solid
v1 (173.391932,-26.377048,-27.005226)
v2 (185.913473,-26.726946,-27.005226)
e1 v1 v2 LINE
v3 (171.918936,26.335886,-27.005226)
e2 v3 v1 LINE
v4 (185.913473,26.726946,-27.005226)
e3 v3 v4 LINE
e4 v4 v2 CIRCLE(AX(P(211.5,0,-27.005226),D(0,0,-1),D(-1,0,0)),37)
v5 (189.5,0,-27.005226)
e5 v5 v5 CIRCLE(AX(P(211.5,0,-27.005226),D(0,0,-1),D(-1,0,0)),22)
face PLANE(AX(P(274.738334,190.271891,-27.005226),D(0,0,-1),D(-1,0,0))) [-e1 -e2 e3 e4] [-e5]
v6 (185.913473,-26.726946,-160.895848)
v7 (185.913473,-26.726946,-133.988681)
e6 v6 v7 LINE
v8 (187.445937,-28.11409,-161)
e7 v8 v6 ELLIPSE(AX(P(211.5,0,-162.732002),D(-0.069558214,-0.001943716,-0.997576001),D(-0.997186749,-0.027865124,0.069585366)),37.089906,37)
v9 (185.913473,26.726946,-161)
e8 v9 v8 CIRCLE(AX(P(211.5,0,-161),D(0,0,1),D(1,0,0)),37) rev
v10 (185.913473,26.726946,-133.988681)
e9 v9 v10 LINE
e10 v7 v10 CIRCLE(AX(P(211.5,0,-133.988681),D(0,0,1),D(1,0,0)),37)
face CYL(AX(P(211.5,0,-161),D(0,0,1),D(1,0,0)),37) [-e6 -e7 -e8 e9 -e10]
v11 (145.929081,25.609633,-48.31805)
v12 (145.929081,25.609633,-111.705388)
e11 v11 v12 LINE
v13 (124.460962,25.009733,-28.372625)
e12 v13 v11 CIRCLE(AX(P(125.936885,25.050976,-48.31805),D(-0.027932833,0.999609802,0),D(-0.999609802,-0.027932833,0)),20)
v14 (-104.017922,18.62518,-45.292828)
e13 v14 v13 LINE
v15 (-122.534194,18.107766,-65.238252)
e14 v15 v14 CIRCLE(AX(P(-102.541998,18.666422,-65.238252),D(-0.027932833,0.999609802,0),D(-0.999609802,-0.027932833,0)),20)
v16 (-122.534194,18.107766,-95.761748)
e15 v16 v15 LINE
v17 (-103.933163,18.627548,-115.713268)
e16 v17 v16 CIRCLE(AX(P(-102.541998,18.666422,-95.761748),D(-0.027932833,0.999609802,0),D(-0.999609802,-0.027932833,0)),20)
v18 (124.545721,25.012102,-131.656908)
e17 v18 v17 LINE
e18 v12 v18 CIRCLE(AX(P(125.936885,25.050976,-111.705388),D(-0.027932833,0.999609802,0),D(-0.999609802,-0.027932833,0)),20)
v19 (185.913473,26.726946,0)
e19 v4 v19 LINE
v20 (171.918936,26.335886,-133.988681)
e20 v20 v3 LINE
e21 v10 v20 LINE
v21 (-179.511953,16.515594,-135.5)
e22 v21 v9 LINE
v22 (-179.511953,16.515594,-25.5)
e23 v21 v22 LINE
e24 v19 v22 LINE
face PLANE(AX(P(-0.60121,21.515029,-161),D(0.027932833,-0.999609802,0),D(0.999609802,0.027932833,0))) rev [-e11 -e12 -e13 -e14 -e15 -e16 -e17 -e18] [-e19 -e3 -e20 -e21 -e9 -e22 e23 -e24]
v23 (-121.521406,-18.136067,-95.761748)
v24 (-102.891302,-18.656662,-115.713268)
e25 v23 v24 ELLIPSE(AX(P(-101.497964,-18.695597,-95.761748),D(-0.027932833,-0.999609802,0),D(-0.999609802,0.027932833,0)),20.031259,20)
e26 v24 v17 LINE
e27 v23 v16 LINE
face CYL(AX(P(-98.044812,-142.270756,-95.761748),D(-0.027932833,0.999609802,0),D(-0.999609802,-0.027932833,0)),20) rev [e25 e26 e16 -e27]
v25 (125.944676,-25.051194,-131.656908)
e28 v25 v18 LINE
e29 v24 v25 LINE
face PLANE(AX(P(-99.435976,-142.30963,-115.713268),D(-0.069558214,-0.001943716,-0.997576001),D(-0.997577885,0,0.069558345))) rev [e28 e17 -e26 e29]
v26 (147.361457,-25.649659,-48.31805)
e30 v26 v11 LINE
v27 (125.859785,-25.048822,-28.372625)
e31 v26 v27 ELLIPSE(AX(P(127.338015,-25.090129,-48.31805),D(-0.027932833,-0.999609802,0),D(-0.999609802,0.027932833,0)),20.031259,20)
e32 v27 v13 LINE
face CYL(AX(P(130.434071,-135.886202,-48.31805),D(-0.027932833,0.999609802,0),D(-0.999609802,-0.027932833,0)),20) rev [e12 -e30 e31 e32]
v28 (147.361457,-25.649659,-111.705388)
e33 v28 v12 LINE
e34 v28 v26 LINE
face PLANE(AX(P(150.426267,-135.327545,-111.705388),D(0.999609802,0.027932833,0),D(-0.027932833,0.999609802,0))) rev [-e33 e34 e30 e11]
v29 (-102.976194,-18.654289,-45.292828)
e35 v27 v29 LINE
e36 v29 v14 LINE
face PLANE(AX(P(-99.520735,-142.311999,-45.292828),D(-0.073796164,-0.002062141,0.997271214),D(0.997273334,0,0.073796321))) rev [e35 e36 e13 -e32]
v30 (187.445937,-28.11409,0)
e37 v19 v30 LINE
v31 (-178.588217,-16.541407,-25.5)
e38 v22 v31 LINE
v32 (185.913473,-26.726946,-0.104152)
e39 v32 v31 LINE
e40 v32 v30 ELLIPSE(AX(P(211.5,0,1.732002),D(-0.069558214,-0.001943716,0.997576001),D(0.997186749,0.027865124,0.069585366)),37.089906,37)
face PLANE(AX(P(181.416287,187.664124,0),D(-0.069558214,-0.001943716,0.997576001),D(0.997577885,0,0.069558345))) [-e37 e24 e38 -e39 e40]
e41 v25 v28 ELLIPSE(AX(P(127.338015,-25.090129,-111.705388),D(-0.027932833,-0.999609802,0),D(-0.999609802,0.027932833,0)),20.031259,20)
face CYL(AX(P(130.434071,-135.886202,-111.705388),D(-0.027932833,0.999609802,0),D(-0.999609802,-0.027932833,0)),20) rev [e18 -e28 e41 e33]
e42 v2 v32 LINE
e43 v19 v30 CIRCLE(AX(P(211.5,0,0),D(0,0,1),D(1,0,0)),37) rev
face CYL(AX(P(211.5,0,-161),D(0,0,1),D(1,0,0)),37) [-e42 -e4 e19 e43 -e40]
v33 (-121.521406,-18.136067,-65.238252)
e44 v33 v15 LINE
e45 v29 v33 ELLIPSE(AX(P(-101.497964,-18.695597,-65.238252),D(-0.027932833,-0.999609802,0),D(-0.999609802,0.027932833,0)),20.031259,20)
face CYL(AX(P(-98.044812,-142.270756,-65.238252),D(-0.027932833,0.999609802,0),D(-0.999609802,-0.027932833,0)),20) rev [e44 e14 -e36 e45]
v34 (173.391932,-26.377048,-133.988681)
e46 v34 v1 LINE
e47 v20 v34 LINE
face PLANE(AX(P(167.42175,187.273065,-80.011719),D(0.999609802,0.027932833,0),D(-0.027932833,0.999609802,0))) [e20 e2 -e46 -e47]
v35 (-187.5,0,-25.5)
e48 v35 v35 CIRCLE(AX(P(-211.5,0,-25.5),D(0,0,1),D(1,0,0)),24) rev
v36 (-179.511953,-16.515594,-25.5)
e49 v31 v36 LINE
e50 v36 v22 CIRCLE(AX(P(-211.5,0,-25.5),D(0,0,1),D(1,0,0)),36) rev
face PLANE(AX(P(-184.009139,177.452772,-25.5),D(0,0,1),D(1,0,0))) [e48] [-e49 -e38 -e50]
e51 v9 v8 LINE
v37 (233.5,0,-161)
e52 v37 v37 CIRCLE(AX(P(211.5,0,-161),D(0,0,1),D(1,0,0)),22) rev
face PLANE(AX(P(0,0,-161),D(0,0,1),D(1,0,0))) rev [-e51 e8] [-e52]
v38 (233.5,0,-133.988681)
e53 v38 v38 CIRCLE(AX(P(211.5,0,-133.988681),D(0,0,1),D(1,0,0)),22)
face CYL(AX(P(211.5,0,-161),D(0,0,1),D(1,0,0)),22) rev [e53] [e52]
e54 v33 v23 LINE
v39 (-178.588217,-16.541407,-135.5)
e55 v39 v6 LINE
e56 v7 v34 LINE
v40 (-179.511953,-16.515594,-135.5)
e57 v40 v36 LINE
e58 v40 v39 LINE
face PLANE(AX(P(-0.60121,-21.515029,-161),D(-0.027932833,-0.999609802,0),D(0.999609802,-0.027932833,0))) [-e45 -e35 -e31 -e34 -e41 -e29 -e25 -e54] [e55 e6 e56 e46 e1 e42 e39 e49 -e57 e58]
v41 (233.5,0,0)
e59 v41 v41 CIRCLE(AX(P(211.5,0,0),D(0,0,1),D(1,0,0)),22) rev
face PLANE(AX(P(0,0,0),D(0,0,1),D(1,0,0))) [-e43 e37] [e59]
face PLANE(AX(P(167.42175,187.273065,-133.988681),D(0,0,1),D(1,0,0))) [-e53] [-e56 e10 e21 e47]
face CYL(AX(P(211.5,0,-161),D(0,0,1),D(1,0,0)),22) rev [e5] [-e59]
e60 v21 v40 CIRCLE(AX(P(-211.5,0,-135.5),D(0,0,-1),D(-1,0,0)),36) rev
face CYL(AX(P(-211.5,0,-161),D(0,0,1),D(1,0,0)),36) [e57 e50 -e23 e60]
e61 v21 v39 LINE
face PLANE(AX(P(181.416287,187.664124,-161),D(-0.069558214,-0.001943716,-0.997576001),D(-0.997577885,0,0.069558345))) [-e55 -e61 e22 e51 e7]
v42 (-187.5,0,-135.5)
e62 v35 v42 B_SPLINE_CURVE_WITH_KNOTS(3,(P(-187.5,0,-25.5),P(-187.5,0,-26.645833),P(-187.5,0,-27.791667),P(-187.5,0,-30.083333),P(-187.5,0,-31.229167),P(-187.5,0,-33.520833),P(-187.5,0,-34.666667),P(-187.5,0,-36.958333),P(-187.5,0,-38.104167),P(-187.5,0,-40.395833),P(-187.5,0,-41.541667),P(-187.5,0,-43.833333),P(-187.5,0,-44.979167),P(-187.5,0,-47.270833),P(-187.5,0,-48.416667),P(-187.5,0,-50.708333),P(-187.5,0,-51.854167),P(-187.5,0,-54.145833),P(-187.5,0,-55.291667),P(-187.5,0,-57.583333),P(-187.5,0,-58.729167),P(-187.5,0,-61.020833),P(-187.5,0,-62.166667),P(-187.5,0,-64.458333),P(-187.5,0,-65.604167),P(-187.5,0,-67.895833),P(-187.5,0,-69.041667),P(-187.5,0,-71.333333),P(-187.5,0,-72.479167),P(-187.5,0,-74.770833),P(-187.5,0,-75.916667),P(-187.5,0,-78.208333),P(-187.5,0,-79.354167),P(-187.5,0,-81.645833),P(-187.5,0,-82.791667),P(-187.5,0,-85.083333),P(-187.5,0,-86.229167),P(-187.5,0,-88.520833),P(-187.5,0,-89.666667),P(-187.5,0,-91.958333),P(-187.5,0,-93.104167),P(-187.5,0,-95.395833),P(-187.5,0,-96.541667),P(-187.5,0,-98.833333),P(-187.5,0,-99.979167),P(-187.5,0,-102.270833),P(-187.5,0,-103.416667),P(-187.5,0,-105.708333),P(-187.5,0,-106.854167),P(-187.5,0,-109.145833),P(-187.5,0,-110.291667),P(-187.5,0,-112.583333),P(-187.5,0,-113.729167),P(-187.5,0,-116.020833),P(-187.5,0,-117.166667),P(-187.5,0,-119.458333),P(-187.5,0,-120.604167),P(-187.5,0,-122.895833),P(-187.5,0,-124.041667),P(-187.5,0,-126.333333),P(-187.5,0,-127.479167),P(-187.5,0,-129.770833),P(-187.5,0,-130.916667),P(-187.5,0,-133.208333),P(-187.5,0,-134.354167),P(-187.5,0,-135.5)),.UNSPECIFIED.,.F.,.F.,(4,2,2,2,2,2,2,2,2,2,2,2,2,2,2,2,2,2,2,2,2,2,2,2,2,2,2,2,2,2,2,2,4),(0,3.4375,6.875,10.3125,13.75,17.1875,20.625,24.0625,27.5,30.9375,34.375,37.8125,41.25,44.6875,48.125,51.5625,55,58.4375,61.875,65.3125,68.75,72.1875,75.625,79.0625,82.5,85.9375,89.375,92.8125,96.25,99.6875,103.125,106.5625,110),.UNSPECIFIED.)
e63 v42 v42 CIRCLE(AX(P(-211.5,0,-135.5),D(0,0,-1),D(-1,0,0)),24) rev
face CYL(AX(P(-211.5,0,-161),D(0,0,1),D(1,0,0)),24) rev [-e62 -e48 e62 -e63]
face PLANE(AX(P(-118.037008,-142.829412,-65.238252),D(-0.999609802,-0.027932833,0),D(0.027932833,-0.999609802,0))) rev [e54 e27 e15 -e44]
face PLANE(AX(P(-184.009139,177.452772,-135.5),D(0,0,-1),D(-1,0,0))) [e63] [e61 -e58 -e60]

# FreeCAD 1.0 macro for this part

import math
import FreeCAD as App
import Part
import Sketcher

doc = App.newDocument("Part")
body = doc.addObject("PartDesign::Body", "Body")

sketch1 = body.newObject("Sketcher::SketchObject", "Sketch")
sketch1.AttachmentSupport = (doc.getObject("XY_Plane"), [""])
sketch1.MapMode = "FlatFace"
sketch1.addGeometry(Part.LineSegment(App.Vector(-179.511953, -16.515594, 0), App.Vector(185.913473, -26.726946, 0)), False)
sketch1.addGeometry(Part.ArcOfCircle(Part.Circle(App.Vector(211.5, 0, 0), App.Vector(0, 0, 1), 37), math.radians(-133.751165), math.radians(133.751165)), False)
sketch1.addGeometry(Part.LineSegment(App.Vector(185.913473, 26.726946, 0), App.Vector(-179.511953, 16.515594, 0)), False)
sketch1.addGeometry(Part.ArcOfCircle(Part.Circle(App.Vector(-211.5, 0, 0), App.Vector(0, 0, 1), 36), math.radians(27.307541), math.radians(332.692459)), False)
sketch1.addGeometry(Part.Circle(App.Vector(-211.5, 0, 0), App.Vector(0, 0, 1), 24), False)
sketch1.addGeometry(Part.Circle(App.Vector(211.5, 0, 0), App.Vector(0, 0, 1), 22), False)
sketch1.addConstraint(Sketcher.Constraint("Coincident", 0, 2, 1, 1))
sketch1.addConstraint(Sketcher.Constraint("Coincident", 1, 2, 2, 1))
sketch1.addConstraint(Sketcher.Constraint("Coincident", 2, 2, 3, 1))
sketch1.addConstraint(Sketcher.Constraint("Coincident", 3, 2, 0, 1))
sketch1.addConstraint(Sketcher.Constraint("Coincident", 4, 3, 3, 3))
sketch1.addConstraint(Sketcher.Constraint("Coincident", 5, 3, 1, 3))
sketch1.addConstraint(Sketcher.Constraint("Symmetric", 1, 3, 3, 3, -1, 1))
sketch1.addConstraint(Sketcher.Constraint("Symmetric", 0, 2, 1, 2, -1))
sketch1.addConstraint(Sketcher.Constraint("Vertical", 2, 2, 3, 2))
sketch1.addConstraint(Sketcher.Constraint("Diameter", 4, 48.0))
sketch1.addConstraint(Sketcher.Constraint("Diameter", 5, 44.0))
sketch1.addConstraint(Sketcher.Constraint("Radius", 1, 37.0))
sketch1.addConstraint(Sketcher.Constraint("Radius", 3, 36.0))
sketch1.addConstraint(Sketcher.Constraint("DistanceX", 3, 3, 1, 3, 423.0))
sketch1.addConstraint(Sketcher.Constraint("Distance", 0, 365.56807))
sketch1.addConstraint(Sketcher.Constraint("DistanceY", 2, 2, 1, 2, 10.211352))
pad1 = body.newObject("PartDesign::Pad", "Pad")
pad1.Profile = sketch1
pad1.Length = 161
pad1.Reversed = True

sketch2 = body.newObject("Sketcher::SketchObject", "Sketch001")
sketch2.Placement = App.Placement(App.Vector(-0.60121, 21.515029, 0), App.Rotation(App.Vector(0.999609802, 0.027932833, 0), App.Vector(0, 0, -0.999999999), App.Vector(-0.027932833, 0.999609802, 0), "ZXY"))
sketch2.addGeometry(Part.LineSegment(App.Vector(-268.840136, 135.5, 0), App.Vector(-178.98058, 135.5, 0)), False)
sketch2.addGeometry(Part.LineSegment(App.Vector(-178.98058, 135.5, 0), App.Vector(186.587489, 161, 0)), False)
sketch2.addGeometry(Part.LineSegment(App.Vector(186.587489, 161, 0), App.Vector(186.587489, 212.571288, 0)), False)
sketch2.addGeometry(Part.LineSegment(App.Vector(186.587489, 212.571288, 0), App.Vector(-268.840136, 212.571288, 0)), False)
sketch2.addGeometry(Part.LineSegment(App.Vector(-268.840136, 212.571288, 0), App.Vector(-268.840136, 135.5, 0)), False)
sketch2.addGeometry(Part.LineSegment(App.Vector(-178.98058, 25.5, 0), App.Vector(-268.840136, 25.5, 0)), False)
sketch2.addGeometry(Part.LineSegment(App.Vector(-268.840136, 25.5, 0), App.Vector(-268.840136, -47.637415, 0)), False)
sketch2.addGeometry(Part.LineSegment(App.Vector(-268.840136, -47.637415, 0), App.Vector(186.587489, -47.637415, 0)), False)
sketch2.addGeometry(Part.LineSegment(App.Vector(186.587489, -47.637415, 0), App.Vector(186.587489, 0, 0)), False)
sketch2.addGeometry(Part.LineSegment(App.Vector(186.587489, 0, 0), App.Vector(-178.98058, 25.5, 0)), False)
sketch2.addConstraint(Sketcher.Constraint("Coincident", 0, 2, 1, 1))
sketch2.addConstraint(Sketcher.Constraint("Coincident", 1, 2, 2, 1))
sketch2.addConstraint(Sketcher.Constraint("Coincident", 2, 2, 3, 1))
sketch2.addConstraint(Sketcher.Constraint("Coincident", 3, 2, 4, 1))
sketch2.addConstraint(Sketcher.Constraint("Coincident", 4, 2, 0, 1))
sketch2.addConstraint(Sketcher.Constraint("Coincident", 5, 2, 6, 1))
sketch2.addConstraint(Sketcher.Constraint("Coincident", 6, 2, 7, 1))
sketch2.addConstraint(Sketcher.Constraint("Coincident", 7, 2, 8, 1))
sketch2.addConstraint(Sketcher.Constraint("Coincident", 8, 2, 9, 1))
sketch2.addConstraint(Sketcher.Constraint("Coincident", 9, 2, 5, 1))
sketch2.addConstraint(Sketcher.Constraint("Horizontal", 0))
sketch2.addConstraint(Sketcher.Constraint("Vertical", 2))
sketch2.addConstraint(Sketcher.Constraint("Horizontal", 3))
sketch2.addConstraint(Sketcher.Constraint("Vertical", 4))
sketch2.addConstraint(Sketcher.Constraint("Horizontal", 5))
sketch2.addConstraint(Sketcher.Constraint("Vertical", 6))
sketch2.addConstraint(Sketcher.Constraint("Horizontal", 7))
sketch2.addConstraint(Sketcher.Constraint("Vertical", 8))
sketch2.addConstraint(Sketcher.Constraint("PointOnObject", 8, 2, -1))
sketch2.addConstraint(Sketcher.Constraint("Vertical", 4, 2, 5, 2))
sketch2.addConstraint(Sketcher.Constraint("Vertical", 2, 2, 7, 2))
sketch2.addConstraint(Sketcher.Constraint("Vertical", 0, 2, 9, 2))
sketch2.addConstraint(Sketcher.Constraint("Equal", 1, 9))
sketch2.addConstraint(Sketcher.Constraint("DistanceY", -1, 1, 1, 2, 161.0))
sketch2.addConstraint(Sketcher.Constraint("DistanceY", 5, 2, 4, 2, 110.0))
sketch2.addConstraint(Sketcher.Constraint("DistanceY", 2, 1, 2, 2, 51.571288))
sketch2.addConstraint(Sketcher.Constraint("Distance", 1, 366.45636))
sketch2.addConstraint(Sketcher.Constraint("DistanceX", 0, 1, 0, 2, 89.859556))
sketch2.addConstraint(Sketcher.Constraint("DistanceY", 6, 2, 6, 1, 73.137415))
sketch2.addConstraint(Sketcher.Constraint("DistanceX", 0, 2, -1, 1, 178.98058))
pocket1 = body.newObject("PartDesign::Pocket", "Pocket")
pocket1.Profile = sketch2
pocket1.Type = "ThroughAll"
pocket1.Midplane = True

sketch3 = body.newObject("Sketcher::SketchObject", "Sketch002")
sketch3.Placement = App.Placement(App.Vector(-0.60121, 21.515029, 0), App.Rotation(App.Vector(0.999609802, 0.027932833, 0), App.Vector(0, 0, -0.999999999), App.Vector(-0.027932833, 0.999609802, 0), "ZXY"))
sketch3.addGeometry(Part.LineSegment(App.Vector(-121.980581, 95.761748, 0), App.Vector(-121.980581, 65.238252, 0)), False)
sketch3.addGeometry(Part.ArcOfCircle(Part.Circle(App.Vector(-101.980581, 65.238252, 0), App.Vector(0, 0, 1), 20), math.radians(-180), math.radians(-94.233711)), False)
sketch3.addGeometry(Part.LineSegment(App.Vector(-103.45708, 45.292828, 0), App.Vector(125.11099, 28.372625, 0)), False)
sketch3.addGeometry(Part.ArcOfCircle(Part.Circle(App.Vector(126.58749, 48.31805, 0), App.Vector(0, 0, 1), 20), math.radians(-94.233711), math.radians(0)), False)
sketch3.addGeometry(Part.LineSegment(App.Vector(146.58749, 48.31805, 0), App.Vector(146.58749, 111.705388, 0)), False)
sketch3.addGeometry(Part.ArcOfCircle(Part.Circle(App.Vector(126.58749, 111.705388, 0), App.Vector(0, 0, 1), 20), math.radians(0), math.radians(93.990172)), False)
sketch3.addGeometry(Part.LineSegment(App.Vector(125.195782, 131.656908, 0), App.Vector(-103.372288, 115.713268, 0)), False)
sketch3.addGeometry(Part.ArcOfCircle(Part.Circle(App.Vector(-101.980581, 95.761748, 0), App.Vector(0, 0, 1), 20), math.radians(93.990172), math.radians(180)), False)
sketch3.addConstraint(Sketcher.Constraint("Tangent", 0, 2, 1, 1))
sketch3.addConstraint(Sketcher.Constraint("Tangent", 1, 2, 2, 1))
sketch3.addConstraint(Sketcher.Constraint("Tangent", 2, 2, 3, 1))
sketch3.addConstraint(Sketcher.Constraint("Tangent", 3, 2, 4, 1))
sketch3.addConstraint(Sketcher.Constraint("Tangent", 4, 2, 5, 1))
sketch3.addConstraint(Sketcher.Constraint("Tangent", 5, 2, 6, 1))
sketch3.addConstraint(Sketcher.Constraint("Tangent", 6, 2, 7, 1))
sketch3.addConstraint(Sketcher.Constraint("Tangent", 7, 2, 0, 1))
sketch3.addConstraint(Sketcher.Constraint("Vertical", 0))
sketch3.addConstraint(Sketcher.Constraint("Vertical", 4))
sketch3.addConstraint(Sketcher.Constraint("Equal", 1, 3))
sketch3.addConstraint(Sketcher.Constraint("Equal", 3, 5))
sketch3.addConstraint(Sketcher.Constraint("Equal", 5, 7))
sketch3.addConstraint(Sketcher.Constraint("Radius", 1, 20.0))
sketch3.addConstraint(Sketcher.Constraint("DistanceY", 4, 1, 4, 2, 63.387338))
sketch3.addConstraint(Sketcher.Constraint("DistanceX", 1, 2, 1, 3, 1.476499))
sketch3.addConstraint(Sketcher.Constraint("Distance", 2, 229.19349))
sketch3.addConstraint(Sketcher.Constraint("DistanceY", 0, 2, 0, 1, 30.523495))
sketch3.addConstraint(Sketcher.Constraint("DistanceX", 1, 3, -1, 1, 101.980581))
sketch3.addConstraint(Sketcher.Constraint("DistanceY", -1, 1, 3, 3, 48.31805))
pocket2 = body.newObject("PartDesign::Pocket", "Pocket001")
pocket2.Profile = sketch3
pocket2.Length = 161

sketch4 = body.newObject("Sketcher::SketchObject", "Sketch003")
sketch4.Placement = App.Placement(App.Vector(-0.60121, 21.515029, 0), App.Rotation(App.Vector(0.999609802, 0.027932833, 0), App.Vector(0, 0, -0.999999999), App.Vector(-0.027932833, 0.999609802, 0), "ZXY"))
sketch4.addGeometry(Part.LineSegment(App.Vector(172.587489, 133.988681, 0), App.Vector(172.587489, 27.005226, 0)), False)
sketch4.addGeometry(Part.LineSegment(App.Vector(172.587489, 27.005226, 0), App.Vector(279.945964, 27.005226, 0)), False)
sketch4.addGeometry(Part.LineSegment(App.Vector(279.945964, 27.005226, 0), App.Vector(279.945964, 133.988681, 0)), False)
sketch4.addGeometry(Part.LineSegment(App.Vector(279.945964, 133.988681, 0), App.Vector(172.587489, 133.988681, 0)), False)
sketch4.addConstraint(Sketcher.Constraint("Coincident", 0, 2, 1, 1))
sketch4.addConstraint(Sketcher.Constraint("Coincident", 1, 2, 2, 1))
sketch4.addConstraint(Sketcher.Constraint("Coincident", 2, 2, 3, 1))
sketch4.addConstraint(Sketcher.Constraint("Coincident", 3, 2, 0, 1))
sketch4.addConstraint(Sketcher.Constraint("Vertical", 0))
sketch4.addConstraint(Sketcher.Constraint("Horizontal", 1))
sketch4.addConstraint(Sketcher.Constraint("Vertical", 2))
sketch4.addConstraint(Sketcher.Constraint("Horizontal", 3))
sketch4.addConstraint(Sketcher.Constraint("DistanceX", 1, 1, 1, 2, 107.358475))
sketch4.addConstraint(Sketcher.Constraint("DistanceY", 0, 2, 0, 1, 106.983455))
sketch4.addConstraint(Sketcher.Constraint("DistanceX", -1, 1, 0, 2, 172.587489))
sketch4.addConstraint(Sketcher.Constraint("DistanceY", -1, 1, 2, 2, 133.988681))
pocket3 = body.newObject("PartDesign::Pocket", "Pocket002")
pocket3.Profile = sketch4
pocket3.Type = "ThroughAll"
pocket3.Midplane = True

doc.recompute()
